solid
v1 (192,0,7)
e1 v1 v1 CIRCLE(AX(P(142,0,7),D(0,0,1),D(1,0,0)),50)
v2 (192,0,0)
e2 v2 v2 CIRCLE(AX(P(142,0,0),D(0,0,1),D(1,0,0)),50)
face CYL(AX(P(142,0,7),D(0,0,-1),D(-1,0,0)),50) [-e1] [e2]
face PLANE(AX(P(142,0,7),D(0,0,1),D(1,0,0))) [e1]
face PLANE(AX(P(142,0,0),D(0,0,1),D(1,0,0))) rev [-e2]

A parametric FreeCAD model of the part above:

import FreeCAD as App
import Part
import Sketcher

V = App.Vector

doc = App.newDocument("Part")
body = doc.addObject("PartDesign::Body", "Body")

# Sketch on XY plane
sketch1 = body.newObject("Sketcher::SketchObject", "Sketch")
sketch1.AttachmentSupport = (doc.getObject("XY_Plane"), [""])
sketch1.MapMode = "FlatFace"
sketch1.addGeometry(Part.Circle(V(142, 0, 0), V(0, 0, 1), 50), False)
sketch1.addConstraint([
    Sketcher.Constraint("PointOnObject", 0, 3, -1),
    Sketcher.Constraint("Diameter", 0, 100.0),
    Sketcher.Constraint("DistanceX", -1, 1, 0, 3, 142.0),
])
pad1 = body.newObject("PartDesign::Pad", "Pad")
pad1.Profile = sketch1
pad1.Length = 7

doc.recompute()
